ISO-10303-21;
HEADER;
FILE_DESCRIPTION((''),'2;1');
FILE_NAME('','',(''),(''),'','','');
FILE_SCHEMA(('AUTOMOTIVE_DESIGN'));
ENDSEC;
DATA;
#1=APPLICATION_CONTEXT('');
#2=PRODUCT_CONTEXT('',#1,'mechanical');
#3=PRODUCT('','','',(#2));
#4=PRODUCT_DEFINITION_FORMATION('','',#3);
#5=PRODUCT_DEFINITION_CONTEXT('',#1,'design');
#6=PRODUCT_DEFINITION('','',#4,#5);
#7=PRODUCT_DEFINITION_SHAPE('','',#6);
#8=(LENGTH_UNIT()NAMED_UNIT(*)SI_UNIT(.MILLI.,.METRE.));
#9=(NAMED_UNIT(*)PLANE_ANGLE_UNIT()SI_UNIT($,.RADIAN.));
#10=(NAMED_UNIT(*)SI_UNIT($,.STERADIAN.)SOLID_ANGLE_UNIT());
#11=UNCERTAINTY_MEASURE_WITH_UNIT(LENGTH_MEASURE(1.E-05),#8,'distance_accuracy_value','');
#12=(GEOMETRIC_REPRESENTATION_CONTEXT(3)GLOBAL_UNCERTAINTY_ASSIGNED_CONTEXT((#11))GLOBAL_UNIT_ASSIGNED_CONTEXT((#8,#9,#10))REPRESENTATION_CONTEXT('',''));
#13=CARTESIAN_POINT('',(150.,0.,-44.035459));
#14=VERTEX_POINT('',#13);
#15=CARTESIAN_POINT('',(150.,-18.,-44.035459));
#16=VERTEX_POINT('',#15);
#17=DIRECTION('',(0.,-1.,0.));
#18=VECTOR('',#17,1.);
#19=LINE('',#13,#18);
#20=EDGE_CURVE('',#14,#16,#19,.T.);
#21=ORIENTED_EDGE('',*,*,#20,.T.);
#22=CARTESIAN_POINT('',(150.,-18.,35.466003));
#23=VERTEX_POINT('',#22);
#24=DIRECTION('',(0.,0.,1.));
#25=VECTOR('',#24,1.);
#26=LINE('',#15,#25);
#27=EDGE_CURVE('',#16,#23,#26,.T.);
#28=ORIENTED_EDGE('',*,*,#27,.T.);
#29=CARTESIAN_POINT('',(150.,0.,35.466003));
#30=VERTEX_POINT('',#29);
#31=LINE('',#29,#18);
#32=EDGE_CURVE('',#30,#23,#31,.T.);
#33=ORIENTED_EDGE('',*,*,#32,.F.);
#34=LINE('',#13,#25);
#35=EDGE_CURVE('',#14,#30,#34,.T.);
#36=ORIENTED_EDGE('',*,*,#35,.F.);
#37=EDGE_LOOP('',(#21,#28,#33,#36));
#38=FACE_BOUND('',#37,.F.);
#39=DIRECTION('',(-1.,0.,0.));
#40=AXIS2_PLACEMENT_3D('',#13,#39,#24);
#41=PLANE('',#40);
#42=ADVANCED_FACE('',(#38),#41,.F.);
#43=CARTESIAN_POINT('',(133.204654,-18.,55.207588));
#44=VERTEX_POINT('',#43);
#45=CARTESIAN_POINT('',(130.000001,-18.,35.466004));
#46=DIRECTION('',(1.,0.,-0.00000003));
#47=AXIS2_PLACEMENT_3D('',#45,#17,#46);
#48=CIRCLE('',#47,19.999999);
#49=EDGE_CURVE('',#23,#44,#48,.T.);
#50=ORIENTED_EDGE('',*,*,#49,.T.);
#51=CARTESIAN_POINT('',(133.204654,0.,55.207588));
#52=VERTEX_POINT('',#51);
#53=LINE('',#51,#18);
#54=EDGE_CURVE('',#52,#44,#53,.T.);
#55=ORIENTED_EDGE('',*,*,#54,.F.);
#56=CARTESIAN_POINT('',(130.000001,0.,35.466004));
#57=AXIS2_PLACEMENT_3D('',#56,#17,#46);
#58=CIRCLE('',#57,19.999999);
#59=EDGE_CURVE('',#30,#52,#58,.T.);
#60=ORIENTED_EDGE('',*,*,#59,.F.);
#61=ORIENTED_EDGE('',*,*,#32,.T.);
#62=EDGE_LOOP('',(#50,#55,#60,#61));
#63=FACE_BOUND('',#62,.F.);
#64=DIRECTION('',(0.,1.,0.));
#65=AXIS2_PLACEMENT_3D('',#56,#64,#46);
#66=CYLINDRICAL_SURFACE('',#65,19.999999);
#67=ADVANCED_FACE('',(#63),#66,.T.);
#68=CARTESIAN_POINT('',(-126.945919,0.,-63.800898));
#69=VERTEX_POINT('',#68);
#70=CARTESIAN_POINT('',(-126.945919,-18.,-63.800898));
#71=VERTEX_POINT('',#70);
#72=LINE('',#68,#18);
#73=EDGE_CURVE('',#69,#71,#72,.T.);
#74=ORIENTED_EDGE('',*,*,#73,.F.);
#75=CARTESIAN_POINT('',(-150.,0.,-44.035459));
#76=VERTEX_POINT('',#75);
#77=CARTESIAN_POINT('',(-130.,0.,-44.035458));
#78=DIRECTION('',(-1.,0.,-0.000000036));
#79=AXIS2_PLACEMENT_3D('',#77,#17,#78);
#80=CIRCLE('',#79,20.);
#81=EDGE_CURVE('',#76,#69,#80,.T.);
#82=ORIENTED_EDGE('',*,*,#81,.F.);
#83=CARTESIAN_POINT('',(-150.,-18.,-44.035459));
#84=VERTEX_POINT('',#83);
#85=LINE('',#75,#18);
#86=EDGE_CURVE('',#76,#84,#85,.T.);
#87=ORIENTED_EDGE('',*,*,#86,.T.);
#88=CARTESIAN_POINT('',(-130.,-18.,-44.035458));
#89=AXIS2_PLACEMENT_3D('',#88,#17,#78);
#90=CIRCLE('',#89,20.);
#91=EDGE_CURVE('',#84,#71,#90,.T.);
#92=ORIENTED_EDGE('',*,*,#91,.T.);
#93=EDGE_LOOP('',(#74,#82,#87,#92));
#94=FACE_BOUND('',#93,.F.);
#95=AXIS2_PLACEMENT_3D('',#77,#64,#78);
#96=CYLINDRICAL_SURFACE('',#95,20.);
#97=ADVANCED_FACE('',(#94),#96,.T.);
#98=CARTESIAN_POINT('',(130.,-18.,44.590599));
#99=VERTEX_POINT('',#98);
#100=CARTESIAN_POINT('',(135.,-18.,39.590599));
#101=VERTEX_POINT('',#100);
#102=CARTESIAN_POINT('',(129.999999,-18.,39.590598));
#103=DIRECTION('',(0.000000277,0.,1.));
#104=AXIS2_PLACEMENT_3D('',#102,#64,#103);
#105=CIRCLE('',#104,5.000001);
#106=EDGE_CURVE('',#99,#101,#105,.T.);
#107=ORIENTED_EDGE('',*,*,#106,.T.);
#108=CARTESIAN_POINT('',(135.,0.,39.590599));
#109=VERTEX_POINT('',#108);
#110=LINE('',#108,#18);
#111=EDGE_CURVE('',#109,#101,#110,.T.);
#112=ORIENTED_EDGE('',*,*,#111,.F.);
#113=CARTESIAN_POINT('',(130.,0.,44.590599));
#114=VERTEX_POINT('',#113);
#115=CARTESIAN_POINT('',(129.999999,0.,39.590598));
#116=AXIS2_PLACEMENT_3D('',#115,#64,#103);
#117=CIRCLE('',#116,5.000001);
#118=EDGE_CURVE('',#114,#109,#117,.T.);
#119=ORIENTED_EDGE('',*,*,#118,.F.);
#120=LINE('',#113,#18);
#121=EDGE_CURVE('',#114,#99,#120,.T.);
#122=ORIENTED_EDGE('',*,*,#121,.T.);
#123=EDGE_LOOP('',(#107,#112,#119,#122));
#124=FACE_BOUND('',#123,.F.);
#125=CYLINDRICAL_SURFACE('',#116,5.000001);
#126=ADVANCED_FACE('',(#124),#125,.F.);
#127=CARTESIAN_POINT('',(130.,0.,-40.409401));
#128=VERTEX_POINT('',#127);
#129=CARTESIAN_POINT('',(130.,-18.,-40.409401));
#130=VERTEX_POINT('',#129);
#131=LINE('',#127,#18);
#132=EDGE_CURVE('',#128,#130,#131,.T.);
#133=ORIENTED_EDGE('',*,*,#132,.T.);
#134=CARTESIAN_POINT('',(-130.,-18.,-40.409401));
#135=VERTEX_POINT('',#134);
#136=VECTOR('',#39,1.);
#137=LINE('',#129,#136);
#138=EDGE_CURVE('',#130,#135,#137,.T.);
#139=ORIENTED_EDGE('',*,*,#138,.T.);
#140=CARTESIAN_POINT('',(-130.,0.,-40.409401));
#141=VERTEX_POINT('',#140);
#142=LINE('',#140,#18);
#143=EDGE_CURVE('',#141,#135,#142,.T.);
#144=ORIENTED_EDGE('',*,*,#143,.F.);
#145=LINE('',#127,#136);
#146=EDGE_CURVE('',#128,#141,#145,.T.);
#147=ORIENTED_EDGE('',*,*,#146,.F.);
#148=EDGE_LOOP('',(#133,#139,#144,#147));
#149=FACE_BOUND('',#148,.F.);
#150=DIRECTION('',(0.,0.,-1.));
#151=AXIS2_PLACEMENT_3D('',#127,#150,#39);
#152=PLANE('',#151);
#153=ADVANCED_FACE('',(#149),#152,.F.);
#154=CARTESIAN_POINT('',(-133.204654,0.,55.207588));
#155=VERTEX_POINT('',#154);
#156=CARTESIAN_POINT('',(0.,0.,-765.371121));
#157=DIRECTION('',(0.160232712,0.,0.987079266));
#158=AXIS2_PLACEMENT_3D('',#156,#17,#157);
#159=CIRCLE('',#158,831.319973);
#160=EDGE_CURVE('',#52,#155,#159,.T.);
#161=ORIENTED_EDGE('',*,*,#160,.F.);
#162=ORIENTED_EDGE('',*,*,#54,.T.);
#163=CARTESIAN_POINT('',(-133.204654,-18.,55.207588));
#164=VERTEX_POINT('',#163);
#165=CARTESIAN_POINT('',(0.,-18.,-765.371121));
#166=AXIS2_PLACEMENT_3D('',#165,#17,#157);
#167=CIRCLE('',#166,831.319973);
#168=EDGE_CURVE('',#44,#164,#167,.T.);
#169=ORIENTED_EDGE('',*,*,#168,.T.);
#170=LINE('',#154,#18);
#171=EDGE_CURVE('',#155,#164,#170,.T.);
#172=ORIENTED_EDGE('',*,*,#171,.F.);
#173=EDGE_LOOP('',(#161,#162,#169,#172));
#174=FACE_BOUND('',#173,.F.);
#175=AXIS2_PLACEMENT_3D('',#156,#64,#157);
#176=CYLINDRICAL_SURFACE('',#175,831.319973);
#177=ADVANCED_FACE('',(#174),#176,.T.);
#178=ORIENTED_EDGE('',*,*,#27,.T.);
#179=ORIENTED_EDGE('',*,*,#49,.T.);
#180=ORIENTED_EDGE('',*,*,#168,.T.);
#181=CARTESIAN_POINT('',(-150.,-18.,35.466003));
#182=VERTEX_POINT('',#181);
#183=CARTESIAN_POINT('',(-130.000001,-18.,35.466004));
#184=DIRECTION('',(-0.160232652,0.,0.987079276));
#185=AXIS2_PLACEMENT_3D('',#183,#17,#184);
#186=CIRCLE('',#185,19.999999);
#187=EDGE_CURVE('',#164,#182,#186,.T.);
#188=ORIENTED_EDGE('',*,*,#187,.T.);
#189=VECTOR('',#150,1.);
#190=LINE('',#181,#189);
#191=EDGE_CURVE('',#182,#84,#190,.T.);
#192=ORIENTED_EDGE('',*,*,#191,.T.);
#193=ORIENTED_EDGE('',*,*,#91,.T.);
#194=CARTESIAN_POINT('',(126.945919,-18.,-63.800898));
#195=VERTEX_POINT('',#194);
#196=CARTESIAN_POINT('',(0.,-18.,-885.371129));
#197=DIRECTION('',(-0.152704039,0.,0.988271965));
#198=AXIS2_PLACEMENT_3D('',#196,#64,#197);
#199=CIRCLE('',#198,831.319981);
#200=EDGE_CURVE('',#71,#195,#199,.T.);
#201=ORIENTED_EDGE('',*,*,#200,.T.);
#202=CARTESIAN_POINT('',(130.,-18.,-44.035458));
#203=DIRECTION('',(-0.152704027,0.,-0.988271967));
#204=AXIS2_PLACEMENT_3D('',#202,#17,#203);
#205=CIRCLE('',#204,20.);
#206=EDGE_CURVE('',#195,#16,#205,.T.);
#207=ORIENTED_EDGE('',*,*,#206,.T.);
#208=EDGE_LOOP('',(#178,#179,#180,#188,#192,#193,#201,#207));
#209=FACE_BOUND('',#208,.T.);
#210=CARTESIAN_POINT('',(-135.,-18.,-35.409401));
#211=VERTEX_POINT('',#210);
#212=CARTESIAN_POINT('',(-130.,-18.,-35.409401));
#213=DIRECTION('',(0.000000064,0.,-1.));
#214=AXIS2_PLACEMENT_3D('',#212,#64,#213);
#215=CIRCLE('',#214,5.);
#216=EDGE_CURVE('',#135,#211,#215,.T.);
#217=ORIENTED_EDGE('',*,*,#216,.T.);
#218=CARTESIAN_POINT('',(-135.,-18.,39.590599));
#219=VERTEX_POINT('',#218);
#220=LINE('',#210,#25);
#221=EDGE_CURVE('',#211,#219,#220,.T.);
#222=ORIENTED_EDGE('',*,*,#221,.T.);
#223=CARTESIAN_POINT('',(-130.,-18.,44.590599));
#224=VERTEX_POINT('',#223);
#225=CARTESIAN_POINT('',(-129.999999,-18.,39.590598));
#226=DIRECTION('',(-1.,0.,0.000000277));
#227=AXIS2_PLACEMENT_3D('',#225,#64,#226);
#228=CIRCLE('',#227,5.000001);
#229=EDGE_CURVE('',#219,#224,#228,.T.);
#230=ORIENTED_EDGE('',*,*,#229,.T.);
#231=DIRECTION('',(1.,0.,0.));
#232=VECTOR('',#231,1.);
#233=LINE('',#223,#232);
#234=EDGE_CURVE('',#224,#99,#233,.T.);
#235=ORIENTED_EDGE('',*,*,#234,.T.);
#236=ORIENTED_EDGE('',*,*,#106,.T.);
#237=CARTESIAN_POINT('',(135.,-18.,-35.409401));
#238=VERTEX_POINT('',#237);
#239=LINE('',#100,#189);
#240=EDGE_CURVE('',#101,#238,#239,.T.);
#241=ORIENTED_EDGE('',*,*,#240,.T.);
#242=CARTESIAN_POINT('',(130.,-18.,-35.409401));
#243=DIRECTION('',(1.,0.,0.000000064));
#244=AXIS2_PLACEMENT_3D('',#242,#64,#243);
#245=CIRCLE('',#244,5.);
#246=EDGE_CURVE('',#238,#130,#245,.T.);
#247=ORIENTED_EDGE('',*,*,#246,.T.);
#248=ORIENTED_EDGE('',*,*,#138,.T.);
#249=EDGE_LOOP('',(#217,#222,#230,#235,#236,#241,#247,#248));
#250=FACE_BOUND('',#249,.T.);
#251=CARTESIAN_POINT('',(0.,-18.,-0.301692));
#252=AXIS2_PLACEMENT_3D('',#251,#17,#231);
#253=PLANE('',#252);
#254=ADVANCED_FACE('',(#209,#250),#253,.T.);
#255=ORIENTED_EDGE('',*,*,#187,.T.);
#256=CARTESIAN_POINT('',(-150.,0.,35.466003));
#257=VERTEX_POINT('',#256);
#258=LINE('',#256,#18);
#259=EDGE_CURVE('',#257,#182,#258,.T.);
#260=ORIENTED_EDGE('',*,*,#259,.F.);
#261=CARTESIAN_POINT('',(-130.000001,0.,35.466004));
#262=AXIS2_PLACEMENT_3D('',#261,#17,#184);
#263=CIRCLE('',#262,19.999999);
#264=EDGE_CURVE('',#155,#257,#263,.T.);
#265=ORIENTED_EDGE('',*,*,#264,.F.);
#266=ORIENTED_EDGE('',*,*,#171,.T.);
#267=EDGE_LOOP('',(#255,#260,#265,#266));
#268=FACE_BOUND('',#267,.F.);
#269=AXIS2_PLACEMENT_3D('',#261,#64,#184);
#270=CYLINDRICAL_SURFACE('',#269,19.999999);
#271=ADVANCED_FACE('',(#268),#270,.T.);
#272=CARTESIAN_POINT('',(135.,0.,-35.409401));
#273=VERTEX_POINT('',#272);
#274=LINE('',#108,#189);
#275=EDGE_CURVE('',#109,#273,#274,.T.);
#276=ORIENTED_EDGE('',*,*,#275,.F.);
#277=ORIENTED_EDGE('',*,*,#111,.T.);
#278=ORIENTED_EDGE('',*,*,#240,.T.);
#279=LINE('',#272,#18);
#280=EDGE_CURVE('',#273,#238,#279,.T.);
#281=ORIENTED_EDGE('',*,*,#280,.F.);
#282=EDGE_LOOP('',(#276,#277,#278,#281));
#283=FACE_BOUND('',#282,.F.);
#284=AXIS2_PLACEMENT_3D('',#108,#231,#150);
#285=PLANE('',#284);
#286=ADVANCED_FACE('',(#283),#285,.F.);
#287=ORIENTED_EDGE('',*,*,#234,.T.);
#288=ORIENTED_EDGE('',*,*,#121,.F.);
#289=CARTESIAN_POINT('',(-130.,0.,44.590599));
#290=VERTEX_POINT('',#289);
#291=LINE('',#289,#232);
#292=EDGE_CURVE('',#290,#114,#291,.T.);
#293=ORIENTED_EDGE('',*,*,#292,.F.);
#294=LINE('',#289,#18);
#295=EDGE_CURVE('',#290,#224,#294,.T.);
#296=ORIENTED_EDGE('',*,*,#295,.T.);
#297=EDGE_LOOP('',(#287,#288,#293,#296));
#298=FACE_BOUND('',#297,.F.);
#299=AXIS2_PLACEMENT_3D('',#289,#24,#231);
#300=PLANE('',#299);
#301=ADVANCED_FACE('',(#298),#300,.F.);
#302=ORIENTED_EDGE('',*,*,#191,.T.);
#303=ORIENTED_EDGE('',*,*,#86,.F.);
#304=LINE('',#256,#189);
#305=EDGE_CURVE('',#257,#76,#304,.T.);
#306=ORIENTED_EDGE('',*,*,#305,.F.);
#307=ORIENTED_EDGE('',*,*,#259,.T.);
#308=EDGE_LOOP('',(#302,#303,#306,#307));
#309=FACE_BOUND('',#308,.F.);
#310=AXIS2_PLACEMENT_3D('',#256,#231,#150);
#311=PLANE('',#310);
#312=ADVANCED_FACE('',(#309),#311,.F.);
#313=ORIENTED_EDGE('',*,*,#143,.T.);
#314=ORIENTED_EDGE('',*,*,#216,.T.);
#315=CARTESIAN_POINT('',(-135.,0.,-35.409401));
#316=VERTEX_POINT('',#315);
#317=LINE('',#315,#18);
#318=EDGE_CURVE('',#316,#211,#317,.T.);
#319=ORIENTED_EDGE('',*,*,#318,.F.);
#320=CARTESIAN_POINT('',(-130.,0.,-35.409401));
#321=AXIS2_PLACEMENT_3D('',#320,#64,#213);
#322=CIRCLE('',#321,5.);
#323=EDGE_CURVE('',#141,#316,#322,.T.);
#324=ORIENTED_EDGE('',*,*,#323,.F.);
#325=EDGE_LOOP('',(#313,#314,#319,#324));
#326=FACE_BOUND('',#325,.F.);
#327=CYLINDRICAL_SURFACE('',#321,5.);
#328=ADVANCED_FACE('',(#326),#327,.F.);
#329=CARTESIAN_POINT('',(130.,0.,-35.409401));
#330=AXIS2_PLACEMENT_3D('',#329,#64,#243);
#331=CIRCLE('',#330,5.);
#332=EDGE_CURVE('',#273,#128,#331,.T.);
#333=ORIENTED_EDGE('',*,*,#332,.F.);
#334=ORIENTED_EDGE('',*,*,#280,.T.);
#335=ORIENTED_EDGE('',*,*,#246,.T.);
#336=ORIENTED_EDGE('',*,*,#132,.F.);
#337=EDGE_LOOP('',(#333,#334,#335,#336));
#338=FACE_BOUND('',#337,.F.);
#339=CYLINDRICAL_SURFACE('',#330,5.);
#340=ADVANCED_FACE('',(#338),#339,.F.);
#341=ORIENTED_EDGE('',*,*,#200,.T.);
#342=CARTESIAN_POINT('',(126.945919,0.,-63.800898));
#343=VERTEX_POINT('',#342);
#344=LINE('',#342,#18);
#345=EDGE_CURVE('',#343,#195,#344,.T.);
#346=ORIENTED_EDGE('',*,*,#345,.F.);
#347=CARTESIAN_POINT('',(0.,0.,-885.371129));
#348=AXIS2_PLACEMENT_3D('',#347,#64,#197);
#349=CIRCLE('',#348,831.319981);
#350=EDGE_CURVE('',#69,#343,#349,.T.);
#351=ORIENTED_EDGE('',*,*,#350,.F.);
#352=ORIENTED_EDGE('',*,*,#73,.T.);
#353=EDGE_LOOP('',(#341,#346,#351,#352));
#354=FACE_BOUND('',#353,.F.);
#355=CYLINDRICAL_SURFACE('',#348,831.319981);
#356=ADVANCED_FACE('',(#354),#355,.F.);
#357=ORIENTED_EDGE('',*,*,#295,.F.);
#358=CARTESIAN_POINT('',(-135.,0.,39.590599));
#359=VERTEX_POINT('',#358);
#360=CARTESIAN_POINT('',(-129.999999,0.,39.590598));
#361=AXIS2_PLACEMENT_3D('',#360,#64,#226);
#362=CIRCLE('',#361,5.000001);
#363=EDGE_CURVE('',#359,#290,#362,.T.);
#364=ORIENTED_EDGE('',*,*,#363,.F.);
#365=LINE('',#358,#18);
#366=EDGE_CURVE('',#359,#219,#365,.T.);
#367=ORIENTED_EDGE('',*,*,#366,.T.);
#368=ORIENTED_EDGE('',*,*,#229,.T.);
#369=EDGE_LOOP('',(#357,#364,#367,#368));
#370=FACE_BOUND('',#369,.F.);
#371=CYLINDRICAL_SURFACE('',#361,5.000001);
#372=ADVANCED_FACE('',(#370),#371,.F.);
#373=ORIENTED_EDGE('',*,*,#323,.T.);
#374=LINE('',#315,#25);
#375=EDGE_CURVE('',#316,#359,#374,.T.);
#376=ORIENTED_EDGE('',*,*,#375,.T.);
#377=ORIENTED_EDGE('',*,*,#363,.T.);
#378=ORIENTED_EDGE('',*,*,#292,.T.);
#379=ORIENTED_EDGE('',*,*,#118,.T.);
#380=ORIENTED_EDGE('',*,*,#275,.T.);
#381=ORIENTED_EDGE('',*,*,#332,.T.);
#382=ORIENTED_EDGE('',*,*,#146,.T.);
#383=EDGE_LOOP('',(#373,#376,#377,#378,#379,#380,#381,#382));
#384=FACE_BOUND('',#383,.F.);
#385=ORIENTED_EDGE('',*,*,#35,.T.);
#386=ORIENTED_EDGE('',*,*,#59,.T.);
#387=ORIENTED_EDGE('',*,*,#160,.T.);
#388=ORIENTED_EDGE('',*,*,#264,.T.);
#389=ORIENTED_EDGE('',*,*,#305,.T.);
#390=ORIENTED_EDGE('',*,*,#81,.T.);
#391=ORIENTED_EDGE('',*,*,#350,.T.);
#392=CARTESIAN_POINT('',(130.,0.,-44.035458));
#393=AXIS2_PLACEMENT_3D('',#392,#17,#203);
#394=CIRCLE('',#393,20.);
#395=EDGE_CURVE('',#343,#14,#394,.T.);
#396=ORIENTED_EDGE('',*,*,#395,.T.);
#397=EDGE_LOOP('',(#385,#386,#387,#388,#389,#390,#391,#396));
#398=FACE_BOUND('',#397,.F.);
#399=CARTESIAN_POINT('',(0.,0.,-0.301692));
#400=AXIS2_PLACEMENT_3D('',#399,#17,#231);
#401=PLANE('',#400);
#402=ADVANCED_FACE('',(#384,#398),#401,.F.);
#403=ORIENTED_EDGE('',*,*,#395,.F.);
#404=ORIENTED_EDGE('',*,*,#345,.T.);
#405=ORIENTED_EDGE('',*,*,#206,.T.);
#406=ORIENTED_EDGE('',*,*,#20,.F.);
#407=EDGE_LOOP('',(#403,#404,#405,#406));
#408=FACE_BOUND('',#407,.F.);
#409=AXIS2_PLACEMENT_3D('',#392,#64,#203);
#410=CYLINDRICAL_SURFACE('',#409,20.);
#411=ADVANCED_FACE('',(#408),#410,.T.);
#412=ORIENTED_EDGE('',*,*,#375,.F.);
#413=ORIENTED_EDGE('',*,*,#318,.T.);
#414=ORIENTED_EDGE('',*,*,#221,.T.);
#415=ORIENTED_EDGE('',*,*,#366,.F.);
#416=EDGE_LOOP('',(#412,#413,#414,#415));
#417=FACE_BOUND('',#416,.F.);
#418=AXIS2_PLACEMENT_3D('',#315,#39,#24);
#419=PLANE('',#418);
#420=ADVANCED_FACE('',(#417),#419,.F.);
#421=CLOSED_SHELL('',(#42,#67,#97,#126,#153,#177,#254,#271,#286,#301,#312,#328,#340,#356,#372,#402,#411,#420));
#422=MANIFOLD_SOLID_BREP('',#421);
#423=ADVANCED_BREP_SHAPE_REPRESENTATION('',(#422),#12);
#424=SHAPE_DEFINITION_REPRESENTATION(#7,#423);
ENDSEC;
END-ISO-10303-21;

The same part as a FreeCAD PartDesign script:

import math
import FreeCAD as App
import Part
import Sketcher
from FreeCAD import Vector
Q = App.Units.Quantity

doc = App.newDocument("Part")
body = doc.addObject("PartDesign::Body", "Body")

# Sketch on XZ plane
sketch1 = body.newObject("Sketcher::SketchObject", "Sketch")
sketch1.AttachmentSupport = (doc.getObject("XZ_Plane"), [""])
sketch1.MapMode = "FlatFace"
sketch1.addGeometry([
    Part.ArcOfCircle(Part.Circle(Vector(-130.000001, 35.466004, 0), Vector(0, 0, 1), 19.999999), math.radians(99.2204), math.radians(180.000002)),  # 0
    Part.LineSegment(Vector(-150, 35.466003, 0), Vector(-150, -44.035459, 0)),  # 1
    Part.ArcOfCircle(Part.Circle(Vector(-130, -44.035458, 0), Vector(0, 0, 1), 20), math.radians(-179.999998), math.radians(-81.216338)),  # 2
    Part.ArcOfCircle(Part.Circle(Vector(0, -885.371129, 0), Vector(0, 0, 1), 831.319981), math.radians(81.216338), math.radians(98.783662)),  # 3
    Part.ArcOfCircle(Part.Circle(Vector(130, -44.035458, 0), Vector(0, 0, 1), 20), math.radians(-98.783662), math.radians(-0.000002)),  # 4
    Part.LineSegment(Vector(150, -44.035459, 0), Vector(150, 35.466003, 0)),  # 5
    Part.ArcOfCircle(Part.Circle(Vector(130.000001, 35.466004, 0), Vector(0, 0, 1), 19.999999), math.radians(-0.000002), math.radians(80.7796)),  # 6
    Part.ArcOfCircle(Part.Circle(Vector(0, -765.371121, 0), Vector(0, 0, 1), 831.319973), math.radians(80.779596), math.radians(99.220404)),  # 7
    Part.LineSegment(Vector(135, 39.590599, 0), Vector(135, -35.409401, 0)),  # 8
    Part.ArcOfCircle(Part.Circle(Vector(130, -35.409401, 0), Vector(0, 0, 1), 5), math.radians(-90.000004), math.radians(0.000004)),  # 9
    Part.LineSegment(Vector(130, -40.409401, 0), Vector(-130, -40.409401, 0)),  # 10
    Part.ArcOfCircle(Part.Circle(Vector(-130, -35.409401, 0), Vector(0, 0, 1), 5), math.radians(179.999996), math.radians(270.000004)),  # 11
    Part.LineSegment(Vector(-135, -35.409401, 0), Vector(-135, 39.590599, 0)),  # 12
    Part.ArcOfCircle(Part.Circle(Vector(-129.999999, 39.590598, 0), Vector(0, 0, 1), 5.000001), math.radians(90.000016), math.radians(179.999984)),  # 13
    Part.LineSegment(Vector(-130, 44.590599, 0), Vector(130, 44.590599, 0)),  # 14
    Part.ArcOfCircle(Part.Circle(Vector(129.999999, 39.590598, 0), Vector(0, 0, 1), 5.000001), math.radians(0.000016), math.radians(89.999984)),  # 15
], False)
sketch1.addConstraint([
    Sketcher.Constraint("Tangent", 0, 2, 1, 1),
    Sketcher.Constraint("Tangent", 1, 2, 2, 1),
    Sketcher.Constraint("Tangent", 2, 2, 3, 2),
    Sketcher.Constraint("Tangent", 3, 1, 4, 1),
    Sketcher.Constraint("Tangent", 4, 2, 5, 1),
    Sketcher.Constraint("Tangent", 5, 2, 6, 1),
    Sketcher.Constraint("Tangent", 6, 2, 7, 1),
    Sketcher.Constraint("Tangent", 7, 2, 0, 1),
    Sketcher.Constraint("Tangent", 8, 2, 9, 2),
    Sketcher.Constraint("Tangent", 9, 1, 10, 1),
    Sketcher.Constraint("Tangent", 10, 2, 11, 2),
    Sketcher.Constraint("Tangent", 11, 1, 12, 1),
    Sketcher.Constraint("Tangent", 12, 2, 13, 2),
    Sketcher.Constraint("Tangent", 13, 1, 14, 1),
    Sketcher.Constraint("Tangent", 14, 2, 15, 2),
    Sketcher.Constraint("Tangent", 15, 1, 8, 1),
    Sketcher.Constraint("Vertical", 1),
    Sketcher.Constraint("Vertical", 5),
    Sketcher.Constraint("Vertical", 8),
    Sketcher.Constraint("Horizontal", 10),
    Sketcher.Constraint("Vertical", 12),
    Sketcher.Constraint("Horizontal", 14),
    Sketcher.Constraint("Equal", 0, 2),
    Sketcher.Constraint("Equal", 2, 4),
    Sketcher.Constraint("Equal", 4, 6),
    Sketcher.Constraint("Equal", 9, 11),
    Sketcher.Constraint("Equal", 11, 13),
    Sketcher.Constraint("Equal", 13, 15),
    Sketcher.Constraint("Symmetric", 2, 3, 4, 3, -2),
    Sketcher.Constraint("PointOnObject", 7, 3, -2),
    Sketcher.Constraint("Vertical", 6, 3, 9, 3),
    Sketcher.Constraint("Vertical", 2, 3, 11, 3),
    Sketcher.Constraint("Radius", 0, Q("19.999999 mm")),
    Sketcher.Constraint("Radius", 9, Q("5 mm")),
    Sketcher.Constraint("DistanceX", 10, 2, 10, 1, Q("260 mm")),
    Sketcher.Constraint("DistanceY", 8, 2, 8, 1, Q("75 mm")),
    Sketcher.Constraint("Radius", 3, Q("831.319981 mm")),
    Sketcher.Constraint("Radius", 7, Q("831.319973 mm")),
    Sketcher.Constraint("DistanceY", 9, 3, -1, 1, Q("35.409401 mm")),
    Sketcher.Constraint("DistanceY", 3, 1, -1, 1, Q("63.800898 mm")),
    Sketcher.Constraint("DistanceY", 2, 2, 0, 3, Q("99.266902 mm")),
])
pad1 = body.newObject("PartDesign::Pad", "Pad")
pad1.Profile = sketch1
pad1.Length = 18

doc.recompute()
